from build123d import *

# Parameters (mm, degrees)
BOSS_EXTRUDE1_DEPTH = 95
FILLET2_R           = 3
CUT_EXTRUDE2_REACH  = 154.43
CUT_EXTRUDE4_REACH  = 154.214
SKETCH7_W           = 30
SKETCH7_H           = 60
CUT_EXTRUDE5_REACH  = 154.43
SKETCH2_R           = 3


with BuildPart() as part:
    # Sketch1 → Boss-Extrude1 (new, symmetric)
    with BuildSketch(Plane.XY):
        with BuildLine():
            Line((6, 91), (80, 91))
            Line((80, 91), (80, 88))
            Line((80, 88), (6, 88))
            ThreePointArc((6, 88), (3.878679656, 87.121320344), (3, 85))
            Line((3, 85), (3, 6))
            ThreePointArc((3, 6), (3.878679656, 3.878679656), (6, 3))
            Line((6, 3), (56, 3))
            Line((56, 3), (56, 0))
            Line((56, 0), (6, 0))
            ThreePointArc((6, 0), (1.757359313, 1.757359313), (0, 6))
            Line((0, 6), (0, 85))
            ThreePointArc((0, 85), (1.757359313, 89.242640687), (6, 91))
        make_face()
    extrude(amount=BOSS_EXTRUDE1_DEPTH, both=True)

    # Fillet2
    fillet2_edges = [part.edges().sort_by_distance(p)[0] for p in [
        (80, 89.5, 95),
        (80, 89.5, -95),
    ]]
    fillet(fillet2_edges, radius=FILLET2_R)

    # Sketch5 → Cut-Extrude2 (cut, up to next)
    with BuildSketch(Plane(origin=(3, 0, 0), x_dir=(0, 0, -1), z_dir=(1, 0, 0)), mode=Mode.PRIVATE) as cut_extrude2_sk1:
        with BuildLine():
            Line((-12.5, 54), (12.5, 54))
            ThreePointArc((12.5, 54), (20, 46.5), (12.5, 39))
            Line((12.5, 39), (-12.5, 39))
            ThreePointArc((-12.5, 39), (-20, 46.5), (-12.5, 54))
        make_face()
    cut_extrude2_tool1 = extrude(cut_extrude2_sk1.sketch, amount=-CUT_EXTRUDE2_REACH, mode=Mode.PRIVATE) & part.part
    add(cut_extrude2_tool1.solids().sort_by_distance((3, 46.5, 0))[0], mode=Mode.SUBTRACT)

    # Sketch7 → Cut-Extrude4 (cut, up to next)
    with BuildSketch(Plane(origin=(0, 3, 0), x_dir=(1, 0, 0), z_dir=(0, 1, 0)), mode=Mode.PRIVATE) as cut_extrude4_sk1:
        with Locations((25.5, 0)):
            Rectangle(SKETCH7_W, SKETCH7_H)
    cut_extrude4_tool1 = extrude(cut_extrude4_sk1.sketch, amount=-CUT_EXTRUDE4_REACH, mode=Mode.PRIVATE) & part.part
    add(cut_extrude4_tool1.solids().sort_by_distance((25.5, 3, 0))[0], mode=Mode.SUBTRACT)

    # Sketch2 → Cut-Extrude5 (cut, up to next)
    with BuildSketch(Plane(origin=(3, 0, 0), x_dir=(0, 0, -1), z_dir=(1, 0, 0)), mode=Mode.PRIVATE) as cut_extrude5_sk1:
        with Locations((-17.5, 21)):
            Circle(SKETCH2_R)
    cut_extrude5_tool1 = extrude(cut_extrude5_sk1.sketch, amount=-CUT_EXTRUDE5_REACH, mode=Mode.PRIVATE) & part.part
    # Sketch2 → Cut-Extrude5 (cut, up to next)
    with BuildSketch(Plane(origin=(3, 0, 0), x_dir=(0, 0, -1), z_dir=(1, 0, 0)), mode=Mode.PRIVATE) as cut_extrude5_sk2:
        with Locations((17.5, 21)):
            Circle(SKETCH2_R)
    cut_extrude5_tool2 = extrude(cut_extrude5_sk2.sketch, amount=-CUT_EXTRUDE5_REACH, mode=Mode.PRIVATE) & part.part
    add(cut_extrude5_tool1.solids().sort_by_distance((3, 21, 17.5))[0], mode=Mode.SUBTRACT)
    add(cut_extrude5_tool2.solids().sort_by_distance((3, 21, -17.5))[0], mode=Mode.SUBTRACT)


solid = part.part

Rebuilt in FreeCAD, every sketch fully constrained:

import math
import FreeCAD as App
import Part
import Sketcher
Q = App.Units.Quantity


def edges_at(feature, points):
    """Names of the edges that pass closest to the given points."""
    edges = feature.Shape.Edges
    near = lambda p: min(range(len(edges)), key=lambda i: edges[i].distToShape(Part.Vertex(*p))[0])
    return sorted({f"Edge{near(p) + 1}" for p in points})

doc = App.newDocument("Part")
body = doc.addObject("PartDesign::Body", "Body")

sketch1 = doc.addObject("Sketcher::SketchObject", "Sketch")
body.addObject(sketch1)
sketch1.AttachmentSupport = (doc.XY_Plane, [""])
sketch1.MapMode = "FlatFace"
sketch1.addGeometry(Part.LineSegment(App.Vector(80, 91, 0), App.Vector(6, 91, 0)), False)
sketch1.addGeometry(Part.ArcOfCircle(Part.Circle(App.Vector(6, 85, 0), App.Vector(0, 0, 1), 6), math.radians(90), math.radians(180)), False)
sketch1.addGeometry(Part.LineSegment(App.Vector(0, 85, 0), App.Vector(0, 6, 0)), False)
sketch1.addGeometry(Part.ArcOfCircle(Part.Circle(App.Vector(6, 6, 0), App.Vector(0, 0, 1), 6), math.radians(180), math.radians(270)), False)
sketch1.addGeometry(Part.LineSegment(App.Vector(6, 0, 0), App.Vector(56, 0, 0)), False)
sketch1.addGeometry(Part.LineSegment(App.Vector(56, 0, 0), App.Vector(56, 3, 0)), False)
sketch1.addGeometry(Part.LineSegment(App.Vector(56, 3, 0), App.Vector(6, 3, 0)), False)
sketch1.addGeometry(Part.ArcOfCircle(Part.Circle(App.Vector(6, 6, 0), App.Vector(0, 0, 1), 3), math.radians(180), math.radians(270)), False)
sketch1.addGeometry(Part.LineSegment(App.Vector(3, 6, 0), App.Vector(3, 85, 0)), False)
sketch1.addGeometry(Part.ArcOfCircle(Part.Circle(App.Vector(6, 85, 0), App.Vector(0, 0, 1), 3), math.radians(90), math.radians(180)), False)
sketch1.addGeometry(Part.LineSegment(App.Vector(6, 88, 0), App.Vector(80, 88, 0)), False)
sketch1.addGeometry(Part.LineSegment(App.Vector(80, 88, 0), App.Vector(80, 91, 0)), False)
sketch1.addConstraint(Sketcher.Constraint("Tangent", 0, 2, 1, 1))
sketch1.addConstraint(Sketcher.Constraint("Tangent", 1, 2, 2, 1))
sketch1.addConstraint(Sketcher.Constraint("Tangent", 2, 2, 3, 1))
sketch1.addConstraint(Sketcher.Constraint("Tangent", 3, 2, 4, 1))
sketch1.addConstraint(Sketcher.Constraint("Coincident", 4, 2, 5, 1))
sketch1.addConstraint(Sketcher.Constraint("Coincident", 5, 2, 6, 1))
sketch1.addConstraint(Sketcher.Constraint("Tangent", 6, 2, 7, 2))
sketch1.addConstraint(Sketcher.Constraint("Tangent", 7, 1, 8, 1))
sketch1.addConstraint(Sketcher.Constraint("Tangent", 8, 2, 9, 2))
sketch1.addConstraint(Sketcher.Constraint("Tangent", 9, 1, 10, 1))
sketch1.addConstraint(Sketcher.Constraint("Coincident", 10, 2, 11, 1))
sketch1.addConstraint(Sketcher.Constraint("Coincident", 11, 2, 0, 1))
sketch1.addConstraint(Sketcher.Constraint("Horizontal", 0))
sketch1.addConstraint(Sketcher.Constraint("Vertical", 2))
sketch1.addConstraint(Sketcher.Constraint("Horizontal", 4))
sketch1.addConstraint(Sketcher.Constraint("Vertical", 5))
sketch1.addConstraint(Sketcher.Constraint("Horizontal", 6))
sketch1.addConstraint(Sketcher.Constraint("Vertical", 8))
sketch1.addConstraint(Sketcher.Constraint("Horizontal", 10))
sketch1.addConstraint(Sketcher.Constraint("Vertical", 11))
sketch1.addConstraint(Sketcher.Constraint("Coincident", 7, 3, 3, 3))
sketch1.addConstraint(Sketcher.Constraint("Coincident", 9, 3, 1, 3))
sketch1.addConstraint(Sketcher.Constraint("Equal", 1, 3))
sketch1.addConstraint(Sketcher.Constraint("PointOnObject", 1, 2, -2))
sketch1.addConstraint(Sketcher.Constraint("PointOnObject", 3, 2, -1))
sketch1.addConstraint(Sketcher.Constraint("Radius", 1, Q("6 mm")))
sketch1.addConstraint(Sketcher.Constraint("Radius", 7, Q("3 mm")))
sketch1.addConstraint(Sketcher.Constraint("DistanceX", 0, 2, 0, 1, Q("74 mm")))
sketch1.addConstraint(Sketcher.Constraint("DistanceX", 4, 1, 4, 2, Q("50 mm")))
sketch1.addConstraint(Sketcher.Constraint("DistanceY", 2, 2, 2, 1, Q("79 mm")))
pad1 = doc.addObject("PartDesign::Pad", "Pad")
body.addObject(pad1)
pad1.Profile = sketch1
pad1.Length = 190
pad1.Midplane = True
doc.recompute()

fillet = doc.addObject("PartDesign::Fillet", "Fillet")
body.addObject(fillet)
fillet.Base = (pad1, edges_at(pad1, [(80, 89.5, 95), (80, 89.5, -95)]))
fillet.Radius = 3

sketch2 = doc.addObject("Sketcher::SketchObject", "Sketch001")
body.addObject(sketch2)
sketch2.AttachmentSupport = (doc.YZ_Plane, [""])
sketch2.MapMode = "FlatFace"
sketch2.AttachmentOffset = App.Placement(App.Vector(0, 0, 3), App.Rotation())
sketch2.addGeometry(Part.LineSegment(App.Vector(54, -12, 0), App.Vector(54, 12, 0)), False)
sketch2.addGeometry(Part.ArcOfCircle(Part.Circle(App.Vector(46, 12, 0), App.Vector(0, 0, 1), 8), math.radians(0), math.radians(180)), False)
sketch2.addGeometry(Part.LineSegment(App.Vector(39, 12, 0), App.Vector(39, -12, 0)), False)
sketch2.addGeometry(Part.ArcOfCircle(Part.Circle(App.Vector(46, -12, 0), App.Vector(0, 0, 1), 8), math.radians(180), math.radians(360)), False)
sketch2.addConstraint(Sketcher.Constraint("Tangent", 0, 2, 1, 1))
sketch2.addConstraint(Sketcher.Constraint("Tangent", 1, 2, 2, 1))
sketch2.addConstraint(Sketcher.Constraint("Tangent", 2, 2, 3, 1))
sketch2.addConstraint(Sketcher.Constraint("Tangent", 3, 2, 0, 1))
sketch2.addConstraint(Sketcher.Constraint("Vertical", 0))
sketch2.addConstraint(Sketcher.Constraint("Vertical", 2))
sketch2.addConstraint(Sketcher.Constraint("Radius", 1, Q("7.5 mm")))
sketch2.addConstraint(Sketcher.Constraint("DistanceY", 0, 1, 0, 2, Q("25 mm")))
sketch2.addConstraint(Sketcher.Constraint("DistanceX", -1, 1, 0, 2, Q("54 mm")))
sketch2.addConstraint(Sketcher.Constraint("DistanceY", -1, 1, 1, 3, Q("12.5 mm")))
pocket1 = doc.addObject("PartDesign::Pocket", "Pocket")
body.addObject(pocket1)
pocket1.Profile = sketch2
pocket1.Type = "UpToFirst"

sketch3 = doc.addObject("Sketcher::SketchObject", "Sketch002")
body.addObject(sketch3)
sketch3.AttachmentSupport = (doc.XZ_Plane, [""])
sketch3.MapMode = "FlatFace"
sketch3.AttachmentOffset = App.Placement(App.Vector(0, 0, -3), App.Rotation())
sketch3.addGeometry(Part.LineSegment(App.Vector(10, -30, 0), App.Vector(10, 30, 0)), False)
sketch3.addGeometry(Part.LineSegment(App.Vector(10, 30, 0), App.Vector(40, 30, 0)), False)
sketch3.addGeometry(Part.LineSegment(App.Vector(40, 30, 0), App.Vector(40, -30, 0)), False)
sketch3.addGeometry(Part.LineSegment(App.Vector(40, -30, 0), App.Vector(10, -30, 0)), False)
sketch3.addConstraint(Sketcher.Constraint("Coincident", 0, 2, 1, 1))
sketch3.addConstraint(Sketcher.Constraint("Coincident", 1, 2, 2, 1))
sketch3.addConstraint(Sketcher.Constraint("Coincident", 2, 2, 3, 1))
sketch3.addConstraint(Sketcher.Constraint("Coincident", 3, 2, 0, 1))
sketch3.addConstraint(Sketcher.Constraint("Vertical", 0))
sketch3.addConstraint(Sketcher.Constraint("Horizontal", 1))
sketch3.addConstraint(Sketcher.Constraint("Vertical", 2))
sketch3.addConstraint(Sketcher.Constraint("Horizontal", 3))
sketch3.addConstraint(Sketcher.Constraint("DistanceX", 1, 1, 1, 2, Q("30 mm")))
sketch3.addConstraint(Sketcher.Constraint("DistanceY", 0, 1, 0, 2, Q("60 mm")))
sketch3.addConstraint(Sketcher.Constraint("DistanceY", -1, 1, 0, 2, Q("30 mm")))
sketch3.addConstraint(Sketcher.Constraint("DistanceX", -1, 1, 0, 2, Q("10.5 mm")))
pocket2 = doc.addObject("PartDesign::Pocket", "Pocket001")
body.addObject(pocket2)
pocket2.Profile = sketch3
pocket2.Type = "UpToFirst"
pocket2.Reversed = True

sketch4 = doc.addObject("Sketcher::SketchObject", "Sketch003")
body.addObject(sketch4)
sketch4.AttachmentSupport = (doc.YZ_Plane, [""])
sketch4.MapMode = "FlatFace"
sketch4.AttachmentOffset = App.Placement(App.Vector(0, 0, 3), App.Rotation())
sketch4.addGeometry(Part.Circle(App.Vector(21, 17.5, 0), App.Vector(0, 0, 1), 3), False)
sketch4.addConstraint(Sketcher.Constraint("Diameter", 0, Q("6 mm")))
sketch4.addConstraint(Sketcher.Constraint("DistanceX", -1, 1, 0, 3, Q("21 mm")))
sketch4.addConstraint(Sketcher.Constraint("DistanceY", -1, 1, 0, 3, Q("17.5 mm")))
pocket3 = doc.addObject("PartDesign::Pocket", "Pocket002")
body.addObject(pocket3)
pocket3.Profile = sketch4
pocket3.Type = "UpToFirst"

sketch5 = doc.addObject("Sketcher::SketchObject", "Sketch004")
body.addObject(sketch5)
sketch5.AttachmentSupport = (doc.YZ_Plane, [""])
sketch5.MapMode = "FlatFace"
sketch5.AttachmentOffset = App.Placement(App.Vector(0, 0, 3), App.Rotation())
sketch5.addGeometry(Part.Circle(App.Vector(21, -17.5, 0), App.Vector(0, 0, 1), 3), False)
sketch5.addConstraint(Sketcher.Constraint("Diameter", 0, Q("6 mm")))
sketch5.addConstraint(Sketcher.Constraint("DistanceX", -1, 1, 0, 3, Q("21 mm")))
sketch5.addConstraint(Sketcher.Constraint("DistanceY", 0, 3, -1, 1, Q("17.5 mm")))
pocket4 = doc.addObject("PartDesign::Pocket", "Pocket003")
body.addObject(pocket4)
pocket4.Profile = sketch5
pocket4.Type = "UpToFirst"

doc.recompute()
